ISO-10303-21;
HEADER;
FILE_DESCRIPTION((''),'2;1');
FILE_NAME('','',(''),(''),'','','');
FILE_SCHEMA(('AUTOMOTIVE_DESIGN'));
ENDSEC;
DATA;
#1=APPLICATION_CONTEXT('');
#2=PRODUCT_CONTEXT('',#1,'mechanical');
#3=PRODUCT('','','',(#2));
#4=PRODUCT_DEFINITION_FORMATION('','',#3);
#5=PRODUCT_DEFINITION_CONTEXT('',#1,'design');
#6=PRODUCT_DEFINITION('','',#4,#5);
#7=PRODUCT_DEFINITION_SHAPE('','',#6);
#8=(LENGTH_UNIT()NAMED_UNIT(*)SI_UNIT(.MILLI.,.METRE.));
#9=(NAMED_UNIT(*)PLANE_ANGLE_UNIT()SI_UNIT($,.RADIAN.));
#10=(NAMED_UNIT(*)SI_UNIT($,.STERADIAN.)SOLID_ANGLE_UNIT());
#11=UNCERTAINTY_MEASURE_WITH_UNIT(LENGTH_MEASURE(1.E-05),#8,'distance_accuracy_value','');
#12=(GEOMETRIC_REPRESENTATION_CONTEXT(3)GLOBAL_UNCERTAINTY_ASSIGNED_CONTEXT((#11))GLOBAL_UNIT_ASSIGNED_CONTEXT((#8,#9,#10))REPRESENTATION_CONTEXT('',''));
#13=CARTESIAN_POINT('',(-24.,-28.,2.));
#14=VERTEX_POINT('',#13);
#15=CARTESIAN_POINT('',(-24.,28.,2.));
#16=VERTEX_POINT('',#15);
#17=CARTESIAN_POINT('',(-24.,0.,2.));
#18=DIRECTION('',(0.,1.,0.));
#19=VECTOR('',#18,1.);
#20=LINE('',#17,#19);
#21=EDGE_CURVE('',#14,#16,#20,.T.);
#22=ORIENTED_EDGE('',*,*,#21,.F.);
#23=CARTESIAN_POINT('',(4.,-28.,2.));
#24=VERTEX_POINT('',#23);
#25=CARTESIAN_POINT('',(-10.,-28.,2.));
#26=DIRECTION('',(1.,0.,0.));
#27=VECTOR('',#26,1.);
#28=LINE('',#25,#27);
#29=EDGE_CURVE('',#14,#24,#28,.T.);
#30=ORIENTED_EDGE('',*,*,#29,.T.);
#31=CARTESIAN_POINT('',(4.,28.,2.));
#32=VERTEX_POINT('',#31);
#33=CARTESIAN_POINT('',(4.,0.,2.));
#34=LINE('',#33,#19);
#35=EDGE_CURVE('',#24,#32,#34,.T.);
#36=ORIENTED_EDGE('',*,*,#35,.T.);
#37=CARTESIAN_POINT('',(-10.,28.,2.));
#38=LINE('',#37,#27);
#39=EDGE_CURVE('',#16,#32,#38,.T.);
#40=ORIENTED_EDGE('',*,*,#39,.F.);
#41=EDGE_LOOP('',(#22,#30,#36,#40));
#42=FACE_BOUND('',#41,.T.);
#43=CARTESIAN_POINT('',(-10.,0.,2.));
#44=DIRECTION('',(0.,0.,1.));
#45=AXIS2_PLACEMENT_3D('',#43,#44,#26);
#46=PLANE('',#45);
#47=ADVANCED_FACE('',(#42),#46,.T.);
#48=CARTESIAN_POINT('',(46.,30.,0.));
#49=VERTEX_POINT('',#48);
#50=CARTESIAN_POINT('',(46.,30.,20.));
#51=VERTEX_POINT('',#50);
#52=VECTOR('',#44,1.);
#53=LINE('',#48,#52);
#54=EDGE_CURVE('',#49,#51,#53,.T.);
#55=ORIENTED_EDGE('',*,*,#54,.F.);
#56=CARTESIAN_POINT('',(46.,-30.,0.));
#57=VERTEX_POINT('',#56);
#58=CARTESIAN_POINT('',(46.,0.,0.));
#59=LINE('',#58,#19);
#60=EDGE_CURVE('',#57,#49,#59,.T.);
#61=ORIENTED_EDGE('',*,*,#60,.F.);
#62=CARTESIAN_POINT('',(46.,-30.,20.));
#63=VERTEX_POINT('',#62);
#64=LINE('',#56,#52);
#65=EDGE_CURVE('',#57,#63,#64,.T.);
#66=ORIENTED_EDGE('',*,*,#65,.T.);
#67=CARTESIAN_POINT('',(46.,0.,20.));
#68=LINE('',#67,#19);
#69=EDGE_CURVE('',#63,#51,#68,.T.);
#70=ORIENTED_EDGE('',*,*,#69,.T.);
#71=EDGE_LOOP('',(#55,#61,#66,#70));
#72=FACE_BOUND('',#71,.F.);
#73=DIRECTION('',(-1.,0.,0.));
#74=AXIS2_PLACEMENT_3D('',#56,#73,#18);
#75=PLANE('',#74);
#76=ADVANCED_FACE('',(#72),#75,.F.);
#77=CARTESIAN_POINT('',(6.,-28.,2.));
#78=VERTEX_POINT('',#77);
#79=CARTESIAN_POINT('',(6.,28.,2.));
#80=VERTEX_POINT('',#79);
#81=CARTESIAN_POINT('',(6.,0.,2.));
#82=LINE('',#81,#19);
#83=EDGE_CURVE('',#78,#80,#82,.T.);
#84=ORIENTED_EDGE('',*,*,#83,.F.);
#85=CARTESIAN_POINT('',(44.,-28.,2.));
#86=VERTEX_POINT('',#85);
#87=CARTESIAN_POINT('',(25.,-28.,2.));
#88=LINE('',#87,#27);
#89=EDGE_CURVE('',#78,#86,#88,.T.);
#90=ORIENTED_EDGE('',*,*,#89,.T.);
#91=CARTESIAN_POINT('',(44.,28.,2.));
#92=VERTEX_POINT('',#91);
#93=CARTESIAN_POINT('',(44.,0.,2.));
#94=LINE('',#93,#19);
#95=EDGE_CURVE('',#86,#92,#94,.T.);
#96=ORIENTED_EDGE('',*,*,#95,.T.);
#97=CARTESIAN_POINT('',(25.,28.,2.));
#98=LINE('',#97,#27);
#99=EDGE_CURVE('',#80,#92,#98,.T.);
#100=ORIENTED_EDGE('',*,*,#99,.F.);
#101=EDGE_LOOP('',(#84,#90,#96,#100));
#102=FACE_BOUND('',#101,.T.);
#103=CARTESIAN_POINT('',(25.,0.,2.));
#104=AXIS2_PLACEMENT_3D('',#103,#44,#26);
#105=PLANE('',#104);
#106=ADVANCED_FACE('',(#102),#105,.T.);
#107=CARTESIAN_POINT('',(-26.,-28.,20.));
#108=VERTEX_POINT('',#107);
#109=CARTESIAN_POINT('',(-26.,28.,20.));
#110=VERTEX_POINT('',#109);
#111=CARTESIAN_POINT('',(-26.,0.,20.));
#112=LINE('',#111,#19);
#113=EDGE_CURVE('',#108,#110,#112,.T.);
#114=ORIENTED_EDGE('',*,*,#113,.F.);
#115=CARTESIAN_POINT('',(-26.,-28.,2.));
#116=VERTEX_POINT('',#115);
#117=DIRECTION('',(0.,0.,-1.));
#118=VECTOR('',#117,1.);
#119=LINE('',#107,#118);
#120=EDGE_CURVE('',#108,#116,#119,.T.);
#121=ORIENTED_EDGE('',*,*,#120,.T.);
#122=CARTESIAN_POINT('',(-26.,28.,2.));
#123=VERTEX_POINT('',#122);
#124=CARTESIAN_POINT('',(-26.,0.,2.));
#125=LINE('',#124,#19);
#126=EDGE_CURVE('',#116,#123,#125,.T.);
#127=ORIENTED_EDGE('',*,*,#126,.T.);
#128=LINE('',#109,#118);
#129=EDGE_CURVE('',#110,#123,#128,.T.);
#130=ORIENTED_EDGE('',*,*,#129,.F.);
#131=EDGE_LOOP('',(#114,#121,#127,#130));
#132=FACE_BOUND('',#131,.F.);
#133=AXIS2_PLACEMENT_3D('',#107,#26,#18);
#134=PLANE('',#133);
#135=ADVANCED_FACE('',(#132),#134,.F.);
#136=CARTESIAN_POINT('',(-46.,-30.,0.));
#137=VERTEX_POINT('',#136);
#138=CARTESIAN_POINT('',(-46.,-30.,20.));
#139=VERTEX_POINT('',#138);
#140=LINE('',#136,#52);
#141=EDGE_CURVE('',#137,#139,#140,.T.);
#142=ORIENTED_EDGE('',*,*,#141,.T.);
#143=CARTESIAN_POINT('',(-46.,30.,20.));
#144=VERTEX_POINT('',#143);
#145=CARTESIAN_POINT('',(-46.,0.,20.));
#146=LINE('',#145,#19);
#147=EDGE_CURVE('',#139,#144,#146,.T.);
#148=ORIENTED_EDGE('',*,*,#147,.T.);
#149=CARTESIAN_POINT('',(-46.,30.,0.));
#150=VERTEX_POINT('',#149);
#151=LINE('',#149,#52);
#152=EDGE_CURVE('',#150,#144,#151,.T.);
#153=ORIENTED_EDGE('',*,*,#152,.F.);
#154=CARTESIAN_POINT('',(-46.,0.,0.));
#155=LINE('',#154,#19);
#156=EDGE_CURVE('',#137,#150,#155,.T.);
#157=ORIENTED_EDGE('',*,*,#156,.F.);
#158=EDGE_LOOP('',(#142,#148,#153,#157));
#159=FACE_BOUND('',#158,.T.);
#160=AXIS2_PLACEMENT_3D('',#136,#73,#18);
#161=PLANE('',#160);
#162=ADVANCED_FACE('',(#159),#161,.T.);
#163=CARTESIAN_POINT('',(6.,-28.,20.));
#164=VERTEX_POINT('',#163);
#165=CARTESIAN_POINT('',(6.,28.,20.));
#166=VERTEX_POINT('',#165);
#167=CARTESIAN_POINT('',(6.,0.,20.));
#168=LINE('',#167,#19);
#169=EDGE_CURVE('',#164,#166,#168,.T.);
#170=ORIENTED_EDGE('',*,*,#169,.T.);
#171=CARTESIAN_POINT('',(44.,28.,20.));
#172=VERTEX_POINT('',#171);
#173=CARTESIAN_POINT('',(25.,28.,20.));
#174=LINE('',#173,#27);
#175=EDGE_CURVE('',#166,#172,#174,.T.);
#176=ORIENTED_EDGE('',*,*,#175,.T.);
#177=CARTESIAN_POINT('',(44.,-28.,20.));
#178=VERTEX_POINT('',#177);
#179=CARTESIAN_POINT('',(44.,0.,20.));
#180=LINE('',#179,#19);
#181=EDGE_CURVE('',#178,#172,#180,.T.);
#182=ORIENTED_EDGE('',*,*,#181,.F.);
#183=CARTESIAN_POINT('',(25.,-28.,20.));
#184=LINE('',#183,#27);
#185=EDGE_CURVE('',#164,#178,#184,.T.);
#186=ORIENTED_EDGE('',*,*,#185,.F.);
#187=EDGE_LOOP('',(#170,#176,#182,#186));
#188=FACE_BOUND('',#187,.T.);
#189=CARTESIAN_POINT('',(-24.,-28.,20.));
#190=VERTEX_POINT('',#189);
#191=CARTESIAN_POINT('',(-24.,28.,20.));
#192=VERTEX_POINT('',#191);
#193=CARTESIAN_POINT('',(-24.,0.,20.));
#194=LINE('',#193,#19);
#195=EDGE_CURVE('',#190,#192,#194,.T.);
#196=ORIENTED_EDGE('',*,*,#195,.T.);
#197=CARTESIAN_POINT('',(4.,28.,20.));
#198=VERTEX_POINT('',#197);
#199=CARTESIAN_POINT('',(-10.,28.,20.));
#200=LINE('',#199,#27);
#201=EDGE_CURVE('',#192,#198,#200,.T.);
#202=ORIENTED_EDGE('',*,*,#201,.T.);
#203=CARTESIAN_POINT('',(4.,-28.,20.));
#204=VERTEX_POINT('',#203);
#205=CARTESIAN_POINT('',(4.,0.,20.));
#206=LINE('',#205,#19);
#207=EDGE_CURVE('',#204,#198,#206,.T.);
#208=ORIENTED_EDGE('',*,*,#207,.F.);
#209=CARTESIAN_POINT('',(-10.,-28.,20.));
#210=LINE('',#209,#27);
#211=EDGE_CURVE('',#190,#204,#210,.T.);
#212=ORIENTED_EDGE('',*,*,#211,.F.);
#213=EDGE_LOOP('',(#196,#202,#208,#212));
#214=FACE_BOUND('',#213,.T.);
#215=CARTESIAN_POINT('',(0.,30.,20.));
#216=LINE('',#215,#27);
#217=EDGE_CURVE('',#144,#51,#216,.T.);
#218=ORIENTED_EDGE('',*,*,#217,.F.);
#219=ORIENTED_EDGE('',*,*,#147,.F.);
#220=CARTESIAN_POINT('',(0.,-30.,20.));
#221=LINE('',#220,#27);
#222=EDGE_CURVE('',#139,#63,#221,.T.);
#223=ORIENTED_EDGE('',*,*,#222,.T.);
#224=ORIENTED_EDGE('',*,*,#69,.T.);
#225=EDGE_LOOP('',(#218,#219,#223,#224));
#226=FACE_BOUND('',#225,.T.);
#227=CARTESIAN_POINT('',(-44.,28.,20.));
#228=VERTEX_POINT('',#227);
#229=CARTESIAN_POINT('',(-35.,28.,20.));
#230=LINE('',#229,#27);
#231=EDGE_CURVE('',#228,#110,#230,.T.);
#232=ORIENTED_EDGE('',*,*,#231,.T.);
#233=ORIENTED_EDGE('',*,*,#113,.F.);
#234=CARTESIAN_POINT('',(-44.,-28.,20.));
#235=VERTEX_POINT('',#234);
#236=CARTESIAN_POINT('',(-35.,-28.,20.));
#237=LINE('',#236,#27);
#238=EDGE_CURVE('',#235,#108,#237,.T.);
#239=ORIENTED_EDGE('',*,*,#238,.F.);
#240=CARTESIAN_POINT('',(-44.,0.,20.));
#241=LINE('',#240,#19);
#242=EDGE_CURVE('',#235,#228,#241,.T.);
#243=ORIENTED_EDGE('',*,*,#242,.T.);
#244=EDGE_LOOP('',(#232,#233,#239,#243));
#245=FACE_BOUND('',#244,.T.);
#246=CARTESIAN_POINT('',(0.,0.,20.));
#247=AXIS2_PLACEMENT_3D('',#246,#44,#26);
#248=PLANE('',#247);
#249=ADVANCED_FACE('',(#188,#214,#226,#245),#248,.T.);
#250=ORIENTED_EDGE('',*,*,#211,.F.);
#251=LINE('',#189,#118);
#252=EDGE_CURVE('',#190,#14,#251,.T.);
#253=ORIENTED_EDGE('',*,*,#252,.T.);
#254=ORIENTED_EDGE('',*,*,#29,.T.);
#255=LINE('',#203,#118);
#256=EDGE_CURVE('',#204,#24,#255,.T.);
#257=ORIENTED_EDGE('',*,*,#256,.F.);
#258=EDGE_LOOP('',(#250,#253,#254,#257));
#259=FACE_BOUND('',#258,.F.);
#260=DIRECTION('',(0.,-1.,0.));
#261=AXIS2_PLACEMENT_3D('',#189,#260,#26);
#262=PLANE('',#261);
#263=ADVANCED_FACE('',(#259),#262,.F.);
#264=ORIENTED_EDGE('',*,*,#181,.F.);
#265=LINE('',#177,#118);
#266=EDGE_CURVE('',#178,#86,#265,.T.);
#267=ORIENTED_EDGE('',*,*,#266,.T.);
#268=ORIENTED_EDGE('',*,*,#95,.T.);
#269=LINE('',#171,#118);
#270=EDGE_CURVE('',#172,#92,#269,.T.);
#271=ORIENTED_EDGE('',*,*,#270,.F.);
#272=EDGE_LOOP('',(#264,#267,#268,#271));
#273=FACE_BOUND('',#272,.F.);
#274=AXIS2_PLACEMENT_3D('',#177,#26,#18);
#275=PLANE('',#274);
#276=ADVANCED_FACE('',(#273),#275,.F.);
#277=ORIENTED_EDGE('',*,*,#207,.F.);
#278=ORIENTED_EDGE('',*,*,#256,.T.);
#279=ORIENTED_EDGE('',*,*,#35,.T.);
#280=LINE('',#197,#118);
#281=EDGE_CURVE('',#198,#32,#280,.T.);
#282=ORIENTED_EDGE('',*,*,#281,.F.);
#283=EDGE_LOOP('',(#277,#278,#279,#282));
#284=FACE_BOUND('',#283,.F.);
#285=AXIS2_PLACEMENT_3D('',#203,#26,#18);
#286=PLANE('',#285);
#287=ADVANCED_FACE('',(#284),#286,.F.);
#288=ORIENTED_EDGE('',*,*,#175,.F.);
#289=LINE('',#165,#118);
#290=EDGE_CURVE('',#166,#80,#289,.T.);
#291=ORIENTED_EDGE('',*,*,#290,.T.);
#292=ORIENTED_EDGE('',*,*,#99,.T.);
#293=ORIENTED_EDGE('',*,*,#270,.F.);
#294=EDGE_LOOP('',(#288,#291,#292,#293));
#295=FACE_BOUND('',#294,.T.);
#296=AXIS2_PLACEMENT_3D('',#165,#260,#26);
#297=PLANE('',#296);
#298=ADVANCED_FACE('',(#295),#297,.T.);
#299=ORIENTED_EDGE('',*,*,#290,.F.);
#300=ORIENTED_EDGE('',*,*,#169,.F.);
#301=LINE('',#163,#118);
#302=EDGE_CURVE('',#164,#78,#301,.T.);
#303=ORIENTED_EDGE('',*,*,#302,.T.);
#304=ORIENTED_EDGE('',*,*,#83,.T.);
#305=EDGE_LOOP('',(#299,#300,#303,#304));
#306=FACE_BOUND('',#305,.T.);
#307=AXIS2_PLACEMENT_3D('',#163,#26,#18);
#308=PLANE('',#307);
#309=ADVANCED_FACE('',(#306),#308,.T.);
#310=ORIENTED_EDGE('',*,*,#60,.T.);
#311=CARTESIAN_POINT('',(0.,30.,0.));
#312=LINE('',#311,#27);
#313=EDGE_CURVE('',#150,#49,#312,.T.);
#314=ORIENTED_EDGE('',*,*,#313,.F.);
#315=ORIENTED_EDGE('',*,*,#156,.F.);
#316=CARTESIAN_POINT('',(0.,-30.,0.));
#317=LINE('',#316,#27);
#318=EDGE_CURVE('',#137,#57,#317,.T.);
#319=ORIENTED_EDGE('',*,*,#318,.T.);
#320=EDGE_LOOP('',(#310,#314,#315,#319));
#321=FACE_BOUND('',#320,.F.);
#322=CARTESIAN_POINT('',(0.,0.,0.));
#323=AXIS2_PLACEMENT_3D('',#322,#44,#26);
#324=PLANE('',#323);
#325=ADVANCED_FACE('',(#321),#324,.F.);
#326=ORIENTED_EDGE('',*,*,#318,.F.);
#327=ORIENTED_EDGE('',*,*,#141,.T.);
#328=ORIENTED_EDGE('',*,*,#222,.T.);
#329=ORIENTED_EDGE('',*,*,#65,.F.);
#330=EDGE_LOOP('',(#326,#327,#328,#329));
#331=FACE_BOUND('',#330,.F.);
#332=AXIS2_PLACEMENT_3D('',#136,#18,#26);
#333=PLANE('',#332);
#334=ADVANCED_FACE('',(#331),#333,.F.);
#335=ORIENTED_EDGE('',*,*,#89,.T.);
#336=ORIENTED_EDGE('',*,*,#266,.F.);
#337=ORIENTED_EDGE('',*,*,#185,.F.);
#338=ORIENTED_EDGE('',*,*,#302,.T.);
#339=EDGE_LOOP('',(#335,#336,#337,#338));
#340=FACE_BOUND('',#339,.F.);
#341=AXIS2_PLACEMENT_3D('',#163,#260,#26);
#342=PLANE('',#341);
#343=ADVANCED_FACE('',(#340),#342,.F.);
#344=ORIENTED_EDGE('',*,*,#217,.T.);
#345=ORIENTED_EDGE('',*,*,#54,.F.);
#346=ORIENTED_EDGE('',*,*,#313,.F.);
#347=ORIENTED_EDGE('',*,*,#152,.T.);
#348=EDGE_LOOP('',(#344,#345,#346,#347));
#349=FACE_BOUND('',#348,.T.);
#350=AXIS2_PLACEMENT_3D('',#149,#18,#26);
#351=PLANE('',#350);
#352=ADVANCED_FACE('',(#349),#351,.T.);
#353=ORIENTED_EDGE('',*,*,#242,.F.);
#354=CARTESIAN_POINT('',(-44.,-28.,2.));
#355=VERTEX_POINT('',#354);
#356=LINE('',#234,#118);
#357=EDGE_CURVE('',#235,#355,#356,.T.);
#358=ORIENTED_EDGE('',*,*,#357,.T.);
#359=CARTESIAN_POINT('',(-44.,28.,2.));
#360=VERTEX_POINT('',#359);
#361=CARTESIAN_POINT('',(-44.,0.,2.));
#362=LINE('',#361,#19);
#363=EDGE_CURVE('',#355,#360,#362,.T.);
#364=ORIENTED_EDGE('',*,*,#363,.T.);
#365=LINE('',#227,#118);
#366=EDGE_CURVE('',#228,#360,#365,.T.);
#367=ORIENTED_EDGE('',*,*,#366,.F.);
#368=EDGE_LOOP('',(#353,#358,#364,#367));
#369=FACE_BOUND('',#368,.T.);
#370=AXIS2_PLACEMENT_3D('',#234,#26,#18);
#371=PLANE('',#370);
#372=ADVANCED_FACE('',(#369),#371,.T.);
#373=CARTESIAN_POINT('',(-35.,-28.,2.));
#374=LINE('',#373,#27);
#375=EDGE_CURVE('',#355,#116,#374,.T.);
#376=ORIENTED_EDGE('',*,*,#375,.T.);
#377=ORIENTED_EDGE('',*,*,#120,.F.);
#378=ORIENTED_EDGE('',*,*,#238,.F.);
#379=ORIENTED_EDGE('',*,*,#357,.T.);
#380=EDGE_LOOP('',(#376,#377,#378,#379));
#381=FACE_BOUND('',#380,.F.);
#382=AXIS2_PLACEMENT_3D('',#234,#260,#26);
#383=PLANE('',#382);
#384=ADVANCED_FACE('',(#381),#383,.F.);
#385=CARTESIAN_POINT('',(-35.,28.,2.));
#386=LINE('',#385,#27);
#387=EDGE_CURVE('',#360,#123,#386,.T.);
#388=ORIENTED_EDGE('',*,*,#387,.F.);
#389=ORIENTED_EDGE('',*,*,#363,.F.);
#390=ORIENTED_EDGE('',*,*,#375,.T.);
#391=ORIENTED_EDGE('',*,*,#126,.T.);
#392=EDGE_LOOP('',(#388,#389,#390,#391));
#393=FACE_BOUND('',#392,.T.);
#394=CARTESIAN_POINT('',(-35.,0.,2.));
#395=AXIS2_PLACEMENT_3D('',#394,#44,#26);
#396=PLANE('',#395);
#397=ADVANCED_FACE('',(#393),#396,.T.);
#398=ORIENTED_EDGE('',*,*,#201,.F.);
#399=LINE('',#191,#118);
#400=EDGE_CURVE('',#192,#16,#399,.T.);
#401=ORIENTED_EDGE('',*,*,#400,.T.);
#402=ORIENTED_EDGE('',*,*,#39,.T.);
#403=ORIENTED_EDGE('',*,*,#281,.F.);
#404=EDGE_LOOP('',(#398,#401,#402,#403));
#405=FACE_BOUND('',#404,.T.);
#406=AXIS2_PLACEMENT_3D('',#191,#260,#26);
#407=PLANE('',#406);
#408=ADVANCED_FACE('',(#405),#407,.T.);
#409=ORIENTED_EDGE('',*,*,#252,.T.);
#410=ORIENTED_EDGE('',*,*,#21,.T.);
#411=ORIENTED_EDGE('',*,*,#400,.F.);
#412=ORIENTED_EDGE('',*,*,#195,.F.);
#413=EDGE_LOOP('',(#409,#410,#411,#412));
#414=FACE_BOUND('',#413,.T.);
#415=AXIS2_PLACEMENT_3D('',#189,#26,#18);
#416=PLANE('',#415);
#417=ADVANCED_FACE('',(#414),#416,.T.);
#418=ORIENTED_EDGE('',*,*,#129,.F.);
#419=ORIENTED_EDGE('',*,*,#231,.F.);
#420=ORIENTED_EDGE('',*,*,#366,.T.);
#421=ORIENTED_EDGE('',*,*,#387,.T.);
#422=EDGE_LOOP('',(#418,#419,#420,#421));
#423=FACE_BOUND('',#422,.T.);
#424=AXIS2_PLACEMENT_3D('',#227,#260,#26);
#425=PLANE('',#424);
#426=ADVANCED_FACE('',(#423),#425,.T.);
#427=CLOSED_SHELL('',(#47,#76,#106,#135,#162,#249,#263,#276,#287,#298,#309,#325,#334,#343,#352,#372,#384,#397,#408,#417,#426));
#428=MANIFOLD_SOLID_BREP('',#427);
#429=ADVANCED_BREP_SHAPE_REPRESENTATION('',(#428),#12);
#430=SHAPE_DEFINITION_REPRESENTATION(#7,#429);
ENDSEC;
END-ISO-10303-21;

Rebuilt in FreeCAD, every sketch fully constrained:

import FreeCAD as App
import Part
import Sketcher


def add_polygon(sketch, points):
    """Adds a closed chain of lines whose ends are joined by coincident constraints."""
    first, n = sketch.GeometryCount, len(points)
    for a, b in zip(points, points[1:] + points[:1]):
        sketch.addGeometry(Part.LineSegment(App.Vector(*a, 0), App.Vector(*b, 0)), False)
    for i in range(n):
        sketch.addConstraint(Sketcher.Constraint("Coincident", first + i, 2, first + (i + 1) % n, 1))

doc = App.newDocument("Part")
body = doc.addObject("PartDesign::Body", "Body")

# Sketch on XY plane
sketch1 = body.newObject("Sketcher::SketchObject", "Sketch")
sketch1.AttachmentSupport = (doc.getObject("XY_Plane"), [""])
sketch1.MapMode = "FlatFace"
add_polygon(sketch1, [(-46, 30), (-46, -30), (46, -30), (46, 30)])  # lines 0-3
sketch1.addConstraint(Sketcher.Constraint("Vertical", 0))
sketch1.addConstraint(Sketcher.Constraint("Horizontal", 1))
sketch1.addConstraint(Sketcher.Constraint("Vertical", 2))
sketch1.addConstraint(Sketcher.Constraint("Horizontal", 3))
sketch1.addConstraint(Sketcher.Constraint("Symmetric", 0, 2, 2, 2, -1, 1))
sketch1.addConstraint(Sketcher.Constraint("DistanceX", 1, 1, 1, 2, 92.0))
sketch1.addConstraint(Sketcher.Constraint("DistanceY", 0, 2, 0, 1, 60.0))
pad1 = body.newObject("PartDesign::Pad", "Pad")
pad1.Profile = sketch1
pad1.Length = 20

# Sketch on XY plane
sketch2 = body.newObject("Sketcher::SketchObject", "Sketch001")
sketch2.AttachmentSupport = (doc.getObject("XY_Plane"), [""])
sketch2.MapMode = "FlatFace"
sketch2.AttachmentOffset = App.Placement(App.Vector(0, 0, 20), App.Rotation())
add_polygon(sketch2, [(-44, 28), (-44, -28), (-26, -28), (-26, 28)])  # lines 0-3
add_polygon(sketch2, [(-24, 28), (-24, -28), (4, -28), (4, 28)])  # lines 4-7
add_polygon(sketch2, [(6, 28), (6, -28), (44, -28), (44, 28)])  # lines 8-11
sketch2.addConstraint(Sketcher.Constraint("Vertical", 0))
sketch2.addConstraint(Sketcher.Constraint("Horizontal", 1))
sketch2.addConstraint(Sketcher.Constraint("Vertical", 2))
sketch2.addConstraint(Sketcher.Constraint("Horizontal", 3))
sketch2.addConstraint(Sketcher.Constraint("Vertical", 4))
sketch2.addConstraint(Sketcher.Constraint("Horizontal", 5))
sketch2.addConstraint(Sketcher.Constraint("Vertical", 6))
sketch2.addConstraint(Sketcher.Constraint("Horizontal", 7))
sketch2.addConstraint(Sketcher.Constraint("Vertical", 8))
sketch2.addConstraint(Sketcher.Constraint("Horizontal", 9))
sketch2.addConstraint(Sketcher.Constraint("Vertical", 10))
sketch2.addConstraint(Sketcher.Constraint("Horizontal", 11))
sketch2.addConstraint(Sketcher.Constraint("Symmetric", 3, 2, 9, 2, -1, 1))
sketch2.addConstraint(Sketcher.Constraint("Horizontal", 1, 2, 4, 2))
sketch2.addConstraint(Sketcher.Constraint("Horizontal", 3, 2, 6, 2))
sketch2.addConstraint(Sketcher.Constraint("Horizontal", 5, 2, 8, 2))
sketch2.addConstraint(Sketcher.Constraint("Horizontal", 7, 2, 10, 2))
sketch2.addConstraint(Sketcher.Constraint("DistanceX", 1, 1, 1, 2, 18.0))
sketch2.addConstraint(Sketcher.Constraint("DistanceX", 5, 1, 5, 2, 28.0))
sketch2.addConstraint(Sketcher.Constraint("DistanceX", 9, 1, 9, 2, 38.0))
sketch2.addConstraint(Sketcher.Constraint("DistanceY", 0, 2, 0, 1, 56.0))
sketch2.addConstraint(Sketcher.Constraint("DistanceX", 0, 2, -1, 1, 44.0))
sketch2.addConstraint(Sketcher.Constraint("DistanceX", 4, 2, -1, 1, 24.0))
pocket1 = body.newObject("PartDesign::Pocket", "Pocket")
pocket1.Profile = sketch2
pocket1.Length = 18

doc.recompute()
